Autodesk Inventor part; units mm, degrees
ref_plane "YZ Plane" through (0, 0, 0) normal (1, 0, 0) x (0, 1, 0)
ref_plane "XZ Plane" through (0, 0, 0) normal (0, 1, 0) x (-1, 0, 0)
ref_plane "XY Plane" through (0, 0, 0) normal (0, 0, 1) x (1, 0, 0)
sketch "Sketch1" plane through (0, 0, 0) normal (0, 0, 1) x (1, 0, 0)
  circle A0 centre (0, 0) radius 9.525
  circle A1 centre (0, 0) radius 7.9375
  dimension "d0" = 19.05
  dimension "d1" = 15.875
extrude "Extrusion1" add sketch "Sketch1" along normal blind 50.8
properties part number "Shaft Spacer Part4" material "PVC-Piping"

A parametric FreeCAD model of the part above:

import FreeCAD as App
import Part
import Sketcher

V = App.Vector
Q = App.Units.Quantity

doc = App.newDocument("Part")
body = doc.addObject("PartDesign::Body", "Body")

# Sketch on XY plane
sketch1 = body.newObject("Sketcher::SketchObject", "Sketch")
sketch1.AttachmentSupport = (doc.getObject("XY_Plane"), [""])
sketch1.MapMode = "FlatFace"
sketch1.addGeometry([
    Part.Circle(V(0, 0, 0), V(0, 0, 1), 9.525),
    Part.Circle(V(0, 0, 0), V(0, 0, 1), 7.9375),
], False)
sketch1.addConstraint([
    Sketcher.Constraint("Coincident", 0, 3, -1, 1),
    Sketcher.Constraint("Coincident", 1, 3, -1, 1),
    Sketcher.Constraint("Diameter", 0, Q("0.75 in")),
    Sketcher.Constraint("Diameter", 1, Q("0.625 in")),
])
pad1 = body.newObject("PartDesign::Pad", "Pad")
pad1.Profile = sketch1
pad1.Length = Q("2 in")

doc.recompute()
